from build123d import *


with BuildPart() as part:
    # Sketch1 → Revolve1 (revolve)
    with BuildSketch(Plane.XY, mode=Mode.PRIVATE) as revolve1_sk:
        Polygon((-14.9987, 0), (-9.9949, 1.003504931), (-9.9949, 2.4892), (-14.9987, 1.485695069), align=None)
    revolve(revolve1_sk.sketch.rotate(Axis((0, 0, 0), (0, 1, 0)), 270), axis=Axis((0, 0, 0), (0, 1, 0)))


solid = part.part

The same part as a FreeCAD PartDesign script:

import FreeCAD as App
import Part
import Sketcher

doc = App.newDocument("Part")
body = doc.addObject("PartDesign::Body", "Body")

sketch1 = doc.addObject("Sketcher::SketchObject", "Sketch")
body.addObject(sketch1)
sketch1.AttachmentSupport = (doc.XY_Plane, [""])
sketch1.MapMode = "FlatFace"
sketch1.addGeometry(Part.LineSegment(App.Vector(-15, 0, 0), App.Vector(-10, 1, 0)), False)
sketch1.addGeometry(Part.LineSegment(App.Vector(-10, 1, 0), App.Vector(-10, 2.5, 0)), False)
sketch1.addGeometry(Part.LineSegment(App.Vector(-10, 2.5, 0), App.Vector(-15, 1.5, 0)), False)
sketch1.addGeometry(Part.LineSegment(App.Vector(-15, 1.5, 0), App.Vector(-15, 0, 0)), False)
sketch1.addConstraint(Sketcher.Constraint("Coincident", 0, 2, 1, 1))
sketch1.addConstraint(Sketcher.Constraint("Coincident", 1, 2, 2, 1))
sketch1.addConstraint(Sketcher.Constraint("Coincident", 2, 2, 3, 1))
sketch1.addConstraint(Sketcher.Constraint("Coincident", 3, 2, 0, 1))
sketch1.addConstraint(Sketcher.Constraint("Vertical", 1))
sketch1.addConstraint(Sketcher.Constraint("Vertical", 3))
sketch1.addConstraint(Sketcher.Constraint("PointOnObject", 3, 2, -1))
sketch1.addConstraint(Sketcher.Constraint("Parallel", 0, 2))
sketch1.addConstraint(Sketcher.Constraint("DistanceX", 0, 2, -1, 1, 9.9949))
sketch1.addConstraint(Sketcher.Constraint("DistanceY", -1, 1, 1, 2, 2.4892))
sketch1.addConstraint(Sketcher.Constraint("DistanceX", 2, 2, -1, 1, 14.9987))
sketch1.addConstraint(Sketcher.Constraint("DistanceY", 1, 1, 1, 2, 1.485695))
revolution = doc.addObject("PartDesign::Revolution", "Revolution")
body.addObject(revolution)
revolution.Profile = sketch1
revolution.ReferenceAxis = (sketch1, ["V_Axis"])
revolution.Angle = 360

doc.recompute()
